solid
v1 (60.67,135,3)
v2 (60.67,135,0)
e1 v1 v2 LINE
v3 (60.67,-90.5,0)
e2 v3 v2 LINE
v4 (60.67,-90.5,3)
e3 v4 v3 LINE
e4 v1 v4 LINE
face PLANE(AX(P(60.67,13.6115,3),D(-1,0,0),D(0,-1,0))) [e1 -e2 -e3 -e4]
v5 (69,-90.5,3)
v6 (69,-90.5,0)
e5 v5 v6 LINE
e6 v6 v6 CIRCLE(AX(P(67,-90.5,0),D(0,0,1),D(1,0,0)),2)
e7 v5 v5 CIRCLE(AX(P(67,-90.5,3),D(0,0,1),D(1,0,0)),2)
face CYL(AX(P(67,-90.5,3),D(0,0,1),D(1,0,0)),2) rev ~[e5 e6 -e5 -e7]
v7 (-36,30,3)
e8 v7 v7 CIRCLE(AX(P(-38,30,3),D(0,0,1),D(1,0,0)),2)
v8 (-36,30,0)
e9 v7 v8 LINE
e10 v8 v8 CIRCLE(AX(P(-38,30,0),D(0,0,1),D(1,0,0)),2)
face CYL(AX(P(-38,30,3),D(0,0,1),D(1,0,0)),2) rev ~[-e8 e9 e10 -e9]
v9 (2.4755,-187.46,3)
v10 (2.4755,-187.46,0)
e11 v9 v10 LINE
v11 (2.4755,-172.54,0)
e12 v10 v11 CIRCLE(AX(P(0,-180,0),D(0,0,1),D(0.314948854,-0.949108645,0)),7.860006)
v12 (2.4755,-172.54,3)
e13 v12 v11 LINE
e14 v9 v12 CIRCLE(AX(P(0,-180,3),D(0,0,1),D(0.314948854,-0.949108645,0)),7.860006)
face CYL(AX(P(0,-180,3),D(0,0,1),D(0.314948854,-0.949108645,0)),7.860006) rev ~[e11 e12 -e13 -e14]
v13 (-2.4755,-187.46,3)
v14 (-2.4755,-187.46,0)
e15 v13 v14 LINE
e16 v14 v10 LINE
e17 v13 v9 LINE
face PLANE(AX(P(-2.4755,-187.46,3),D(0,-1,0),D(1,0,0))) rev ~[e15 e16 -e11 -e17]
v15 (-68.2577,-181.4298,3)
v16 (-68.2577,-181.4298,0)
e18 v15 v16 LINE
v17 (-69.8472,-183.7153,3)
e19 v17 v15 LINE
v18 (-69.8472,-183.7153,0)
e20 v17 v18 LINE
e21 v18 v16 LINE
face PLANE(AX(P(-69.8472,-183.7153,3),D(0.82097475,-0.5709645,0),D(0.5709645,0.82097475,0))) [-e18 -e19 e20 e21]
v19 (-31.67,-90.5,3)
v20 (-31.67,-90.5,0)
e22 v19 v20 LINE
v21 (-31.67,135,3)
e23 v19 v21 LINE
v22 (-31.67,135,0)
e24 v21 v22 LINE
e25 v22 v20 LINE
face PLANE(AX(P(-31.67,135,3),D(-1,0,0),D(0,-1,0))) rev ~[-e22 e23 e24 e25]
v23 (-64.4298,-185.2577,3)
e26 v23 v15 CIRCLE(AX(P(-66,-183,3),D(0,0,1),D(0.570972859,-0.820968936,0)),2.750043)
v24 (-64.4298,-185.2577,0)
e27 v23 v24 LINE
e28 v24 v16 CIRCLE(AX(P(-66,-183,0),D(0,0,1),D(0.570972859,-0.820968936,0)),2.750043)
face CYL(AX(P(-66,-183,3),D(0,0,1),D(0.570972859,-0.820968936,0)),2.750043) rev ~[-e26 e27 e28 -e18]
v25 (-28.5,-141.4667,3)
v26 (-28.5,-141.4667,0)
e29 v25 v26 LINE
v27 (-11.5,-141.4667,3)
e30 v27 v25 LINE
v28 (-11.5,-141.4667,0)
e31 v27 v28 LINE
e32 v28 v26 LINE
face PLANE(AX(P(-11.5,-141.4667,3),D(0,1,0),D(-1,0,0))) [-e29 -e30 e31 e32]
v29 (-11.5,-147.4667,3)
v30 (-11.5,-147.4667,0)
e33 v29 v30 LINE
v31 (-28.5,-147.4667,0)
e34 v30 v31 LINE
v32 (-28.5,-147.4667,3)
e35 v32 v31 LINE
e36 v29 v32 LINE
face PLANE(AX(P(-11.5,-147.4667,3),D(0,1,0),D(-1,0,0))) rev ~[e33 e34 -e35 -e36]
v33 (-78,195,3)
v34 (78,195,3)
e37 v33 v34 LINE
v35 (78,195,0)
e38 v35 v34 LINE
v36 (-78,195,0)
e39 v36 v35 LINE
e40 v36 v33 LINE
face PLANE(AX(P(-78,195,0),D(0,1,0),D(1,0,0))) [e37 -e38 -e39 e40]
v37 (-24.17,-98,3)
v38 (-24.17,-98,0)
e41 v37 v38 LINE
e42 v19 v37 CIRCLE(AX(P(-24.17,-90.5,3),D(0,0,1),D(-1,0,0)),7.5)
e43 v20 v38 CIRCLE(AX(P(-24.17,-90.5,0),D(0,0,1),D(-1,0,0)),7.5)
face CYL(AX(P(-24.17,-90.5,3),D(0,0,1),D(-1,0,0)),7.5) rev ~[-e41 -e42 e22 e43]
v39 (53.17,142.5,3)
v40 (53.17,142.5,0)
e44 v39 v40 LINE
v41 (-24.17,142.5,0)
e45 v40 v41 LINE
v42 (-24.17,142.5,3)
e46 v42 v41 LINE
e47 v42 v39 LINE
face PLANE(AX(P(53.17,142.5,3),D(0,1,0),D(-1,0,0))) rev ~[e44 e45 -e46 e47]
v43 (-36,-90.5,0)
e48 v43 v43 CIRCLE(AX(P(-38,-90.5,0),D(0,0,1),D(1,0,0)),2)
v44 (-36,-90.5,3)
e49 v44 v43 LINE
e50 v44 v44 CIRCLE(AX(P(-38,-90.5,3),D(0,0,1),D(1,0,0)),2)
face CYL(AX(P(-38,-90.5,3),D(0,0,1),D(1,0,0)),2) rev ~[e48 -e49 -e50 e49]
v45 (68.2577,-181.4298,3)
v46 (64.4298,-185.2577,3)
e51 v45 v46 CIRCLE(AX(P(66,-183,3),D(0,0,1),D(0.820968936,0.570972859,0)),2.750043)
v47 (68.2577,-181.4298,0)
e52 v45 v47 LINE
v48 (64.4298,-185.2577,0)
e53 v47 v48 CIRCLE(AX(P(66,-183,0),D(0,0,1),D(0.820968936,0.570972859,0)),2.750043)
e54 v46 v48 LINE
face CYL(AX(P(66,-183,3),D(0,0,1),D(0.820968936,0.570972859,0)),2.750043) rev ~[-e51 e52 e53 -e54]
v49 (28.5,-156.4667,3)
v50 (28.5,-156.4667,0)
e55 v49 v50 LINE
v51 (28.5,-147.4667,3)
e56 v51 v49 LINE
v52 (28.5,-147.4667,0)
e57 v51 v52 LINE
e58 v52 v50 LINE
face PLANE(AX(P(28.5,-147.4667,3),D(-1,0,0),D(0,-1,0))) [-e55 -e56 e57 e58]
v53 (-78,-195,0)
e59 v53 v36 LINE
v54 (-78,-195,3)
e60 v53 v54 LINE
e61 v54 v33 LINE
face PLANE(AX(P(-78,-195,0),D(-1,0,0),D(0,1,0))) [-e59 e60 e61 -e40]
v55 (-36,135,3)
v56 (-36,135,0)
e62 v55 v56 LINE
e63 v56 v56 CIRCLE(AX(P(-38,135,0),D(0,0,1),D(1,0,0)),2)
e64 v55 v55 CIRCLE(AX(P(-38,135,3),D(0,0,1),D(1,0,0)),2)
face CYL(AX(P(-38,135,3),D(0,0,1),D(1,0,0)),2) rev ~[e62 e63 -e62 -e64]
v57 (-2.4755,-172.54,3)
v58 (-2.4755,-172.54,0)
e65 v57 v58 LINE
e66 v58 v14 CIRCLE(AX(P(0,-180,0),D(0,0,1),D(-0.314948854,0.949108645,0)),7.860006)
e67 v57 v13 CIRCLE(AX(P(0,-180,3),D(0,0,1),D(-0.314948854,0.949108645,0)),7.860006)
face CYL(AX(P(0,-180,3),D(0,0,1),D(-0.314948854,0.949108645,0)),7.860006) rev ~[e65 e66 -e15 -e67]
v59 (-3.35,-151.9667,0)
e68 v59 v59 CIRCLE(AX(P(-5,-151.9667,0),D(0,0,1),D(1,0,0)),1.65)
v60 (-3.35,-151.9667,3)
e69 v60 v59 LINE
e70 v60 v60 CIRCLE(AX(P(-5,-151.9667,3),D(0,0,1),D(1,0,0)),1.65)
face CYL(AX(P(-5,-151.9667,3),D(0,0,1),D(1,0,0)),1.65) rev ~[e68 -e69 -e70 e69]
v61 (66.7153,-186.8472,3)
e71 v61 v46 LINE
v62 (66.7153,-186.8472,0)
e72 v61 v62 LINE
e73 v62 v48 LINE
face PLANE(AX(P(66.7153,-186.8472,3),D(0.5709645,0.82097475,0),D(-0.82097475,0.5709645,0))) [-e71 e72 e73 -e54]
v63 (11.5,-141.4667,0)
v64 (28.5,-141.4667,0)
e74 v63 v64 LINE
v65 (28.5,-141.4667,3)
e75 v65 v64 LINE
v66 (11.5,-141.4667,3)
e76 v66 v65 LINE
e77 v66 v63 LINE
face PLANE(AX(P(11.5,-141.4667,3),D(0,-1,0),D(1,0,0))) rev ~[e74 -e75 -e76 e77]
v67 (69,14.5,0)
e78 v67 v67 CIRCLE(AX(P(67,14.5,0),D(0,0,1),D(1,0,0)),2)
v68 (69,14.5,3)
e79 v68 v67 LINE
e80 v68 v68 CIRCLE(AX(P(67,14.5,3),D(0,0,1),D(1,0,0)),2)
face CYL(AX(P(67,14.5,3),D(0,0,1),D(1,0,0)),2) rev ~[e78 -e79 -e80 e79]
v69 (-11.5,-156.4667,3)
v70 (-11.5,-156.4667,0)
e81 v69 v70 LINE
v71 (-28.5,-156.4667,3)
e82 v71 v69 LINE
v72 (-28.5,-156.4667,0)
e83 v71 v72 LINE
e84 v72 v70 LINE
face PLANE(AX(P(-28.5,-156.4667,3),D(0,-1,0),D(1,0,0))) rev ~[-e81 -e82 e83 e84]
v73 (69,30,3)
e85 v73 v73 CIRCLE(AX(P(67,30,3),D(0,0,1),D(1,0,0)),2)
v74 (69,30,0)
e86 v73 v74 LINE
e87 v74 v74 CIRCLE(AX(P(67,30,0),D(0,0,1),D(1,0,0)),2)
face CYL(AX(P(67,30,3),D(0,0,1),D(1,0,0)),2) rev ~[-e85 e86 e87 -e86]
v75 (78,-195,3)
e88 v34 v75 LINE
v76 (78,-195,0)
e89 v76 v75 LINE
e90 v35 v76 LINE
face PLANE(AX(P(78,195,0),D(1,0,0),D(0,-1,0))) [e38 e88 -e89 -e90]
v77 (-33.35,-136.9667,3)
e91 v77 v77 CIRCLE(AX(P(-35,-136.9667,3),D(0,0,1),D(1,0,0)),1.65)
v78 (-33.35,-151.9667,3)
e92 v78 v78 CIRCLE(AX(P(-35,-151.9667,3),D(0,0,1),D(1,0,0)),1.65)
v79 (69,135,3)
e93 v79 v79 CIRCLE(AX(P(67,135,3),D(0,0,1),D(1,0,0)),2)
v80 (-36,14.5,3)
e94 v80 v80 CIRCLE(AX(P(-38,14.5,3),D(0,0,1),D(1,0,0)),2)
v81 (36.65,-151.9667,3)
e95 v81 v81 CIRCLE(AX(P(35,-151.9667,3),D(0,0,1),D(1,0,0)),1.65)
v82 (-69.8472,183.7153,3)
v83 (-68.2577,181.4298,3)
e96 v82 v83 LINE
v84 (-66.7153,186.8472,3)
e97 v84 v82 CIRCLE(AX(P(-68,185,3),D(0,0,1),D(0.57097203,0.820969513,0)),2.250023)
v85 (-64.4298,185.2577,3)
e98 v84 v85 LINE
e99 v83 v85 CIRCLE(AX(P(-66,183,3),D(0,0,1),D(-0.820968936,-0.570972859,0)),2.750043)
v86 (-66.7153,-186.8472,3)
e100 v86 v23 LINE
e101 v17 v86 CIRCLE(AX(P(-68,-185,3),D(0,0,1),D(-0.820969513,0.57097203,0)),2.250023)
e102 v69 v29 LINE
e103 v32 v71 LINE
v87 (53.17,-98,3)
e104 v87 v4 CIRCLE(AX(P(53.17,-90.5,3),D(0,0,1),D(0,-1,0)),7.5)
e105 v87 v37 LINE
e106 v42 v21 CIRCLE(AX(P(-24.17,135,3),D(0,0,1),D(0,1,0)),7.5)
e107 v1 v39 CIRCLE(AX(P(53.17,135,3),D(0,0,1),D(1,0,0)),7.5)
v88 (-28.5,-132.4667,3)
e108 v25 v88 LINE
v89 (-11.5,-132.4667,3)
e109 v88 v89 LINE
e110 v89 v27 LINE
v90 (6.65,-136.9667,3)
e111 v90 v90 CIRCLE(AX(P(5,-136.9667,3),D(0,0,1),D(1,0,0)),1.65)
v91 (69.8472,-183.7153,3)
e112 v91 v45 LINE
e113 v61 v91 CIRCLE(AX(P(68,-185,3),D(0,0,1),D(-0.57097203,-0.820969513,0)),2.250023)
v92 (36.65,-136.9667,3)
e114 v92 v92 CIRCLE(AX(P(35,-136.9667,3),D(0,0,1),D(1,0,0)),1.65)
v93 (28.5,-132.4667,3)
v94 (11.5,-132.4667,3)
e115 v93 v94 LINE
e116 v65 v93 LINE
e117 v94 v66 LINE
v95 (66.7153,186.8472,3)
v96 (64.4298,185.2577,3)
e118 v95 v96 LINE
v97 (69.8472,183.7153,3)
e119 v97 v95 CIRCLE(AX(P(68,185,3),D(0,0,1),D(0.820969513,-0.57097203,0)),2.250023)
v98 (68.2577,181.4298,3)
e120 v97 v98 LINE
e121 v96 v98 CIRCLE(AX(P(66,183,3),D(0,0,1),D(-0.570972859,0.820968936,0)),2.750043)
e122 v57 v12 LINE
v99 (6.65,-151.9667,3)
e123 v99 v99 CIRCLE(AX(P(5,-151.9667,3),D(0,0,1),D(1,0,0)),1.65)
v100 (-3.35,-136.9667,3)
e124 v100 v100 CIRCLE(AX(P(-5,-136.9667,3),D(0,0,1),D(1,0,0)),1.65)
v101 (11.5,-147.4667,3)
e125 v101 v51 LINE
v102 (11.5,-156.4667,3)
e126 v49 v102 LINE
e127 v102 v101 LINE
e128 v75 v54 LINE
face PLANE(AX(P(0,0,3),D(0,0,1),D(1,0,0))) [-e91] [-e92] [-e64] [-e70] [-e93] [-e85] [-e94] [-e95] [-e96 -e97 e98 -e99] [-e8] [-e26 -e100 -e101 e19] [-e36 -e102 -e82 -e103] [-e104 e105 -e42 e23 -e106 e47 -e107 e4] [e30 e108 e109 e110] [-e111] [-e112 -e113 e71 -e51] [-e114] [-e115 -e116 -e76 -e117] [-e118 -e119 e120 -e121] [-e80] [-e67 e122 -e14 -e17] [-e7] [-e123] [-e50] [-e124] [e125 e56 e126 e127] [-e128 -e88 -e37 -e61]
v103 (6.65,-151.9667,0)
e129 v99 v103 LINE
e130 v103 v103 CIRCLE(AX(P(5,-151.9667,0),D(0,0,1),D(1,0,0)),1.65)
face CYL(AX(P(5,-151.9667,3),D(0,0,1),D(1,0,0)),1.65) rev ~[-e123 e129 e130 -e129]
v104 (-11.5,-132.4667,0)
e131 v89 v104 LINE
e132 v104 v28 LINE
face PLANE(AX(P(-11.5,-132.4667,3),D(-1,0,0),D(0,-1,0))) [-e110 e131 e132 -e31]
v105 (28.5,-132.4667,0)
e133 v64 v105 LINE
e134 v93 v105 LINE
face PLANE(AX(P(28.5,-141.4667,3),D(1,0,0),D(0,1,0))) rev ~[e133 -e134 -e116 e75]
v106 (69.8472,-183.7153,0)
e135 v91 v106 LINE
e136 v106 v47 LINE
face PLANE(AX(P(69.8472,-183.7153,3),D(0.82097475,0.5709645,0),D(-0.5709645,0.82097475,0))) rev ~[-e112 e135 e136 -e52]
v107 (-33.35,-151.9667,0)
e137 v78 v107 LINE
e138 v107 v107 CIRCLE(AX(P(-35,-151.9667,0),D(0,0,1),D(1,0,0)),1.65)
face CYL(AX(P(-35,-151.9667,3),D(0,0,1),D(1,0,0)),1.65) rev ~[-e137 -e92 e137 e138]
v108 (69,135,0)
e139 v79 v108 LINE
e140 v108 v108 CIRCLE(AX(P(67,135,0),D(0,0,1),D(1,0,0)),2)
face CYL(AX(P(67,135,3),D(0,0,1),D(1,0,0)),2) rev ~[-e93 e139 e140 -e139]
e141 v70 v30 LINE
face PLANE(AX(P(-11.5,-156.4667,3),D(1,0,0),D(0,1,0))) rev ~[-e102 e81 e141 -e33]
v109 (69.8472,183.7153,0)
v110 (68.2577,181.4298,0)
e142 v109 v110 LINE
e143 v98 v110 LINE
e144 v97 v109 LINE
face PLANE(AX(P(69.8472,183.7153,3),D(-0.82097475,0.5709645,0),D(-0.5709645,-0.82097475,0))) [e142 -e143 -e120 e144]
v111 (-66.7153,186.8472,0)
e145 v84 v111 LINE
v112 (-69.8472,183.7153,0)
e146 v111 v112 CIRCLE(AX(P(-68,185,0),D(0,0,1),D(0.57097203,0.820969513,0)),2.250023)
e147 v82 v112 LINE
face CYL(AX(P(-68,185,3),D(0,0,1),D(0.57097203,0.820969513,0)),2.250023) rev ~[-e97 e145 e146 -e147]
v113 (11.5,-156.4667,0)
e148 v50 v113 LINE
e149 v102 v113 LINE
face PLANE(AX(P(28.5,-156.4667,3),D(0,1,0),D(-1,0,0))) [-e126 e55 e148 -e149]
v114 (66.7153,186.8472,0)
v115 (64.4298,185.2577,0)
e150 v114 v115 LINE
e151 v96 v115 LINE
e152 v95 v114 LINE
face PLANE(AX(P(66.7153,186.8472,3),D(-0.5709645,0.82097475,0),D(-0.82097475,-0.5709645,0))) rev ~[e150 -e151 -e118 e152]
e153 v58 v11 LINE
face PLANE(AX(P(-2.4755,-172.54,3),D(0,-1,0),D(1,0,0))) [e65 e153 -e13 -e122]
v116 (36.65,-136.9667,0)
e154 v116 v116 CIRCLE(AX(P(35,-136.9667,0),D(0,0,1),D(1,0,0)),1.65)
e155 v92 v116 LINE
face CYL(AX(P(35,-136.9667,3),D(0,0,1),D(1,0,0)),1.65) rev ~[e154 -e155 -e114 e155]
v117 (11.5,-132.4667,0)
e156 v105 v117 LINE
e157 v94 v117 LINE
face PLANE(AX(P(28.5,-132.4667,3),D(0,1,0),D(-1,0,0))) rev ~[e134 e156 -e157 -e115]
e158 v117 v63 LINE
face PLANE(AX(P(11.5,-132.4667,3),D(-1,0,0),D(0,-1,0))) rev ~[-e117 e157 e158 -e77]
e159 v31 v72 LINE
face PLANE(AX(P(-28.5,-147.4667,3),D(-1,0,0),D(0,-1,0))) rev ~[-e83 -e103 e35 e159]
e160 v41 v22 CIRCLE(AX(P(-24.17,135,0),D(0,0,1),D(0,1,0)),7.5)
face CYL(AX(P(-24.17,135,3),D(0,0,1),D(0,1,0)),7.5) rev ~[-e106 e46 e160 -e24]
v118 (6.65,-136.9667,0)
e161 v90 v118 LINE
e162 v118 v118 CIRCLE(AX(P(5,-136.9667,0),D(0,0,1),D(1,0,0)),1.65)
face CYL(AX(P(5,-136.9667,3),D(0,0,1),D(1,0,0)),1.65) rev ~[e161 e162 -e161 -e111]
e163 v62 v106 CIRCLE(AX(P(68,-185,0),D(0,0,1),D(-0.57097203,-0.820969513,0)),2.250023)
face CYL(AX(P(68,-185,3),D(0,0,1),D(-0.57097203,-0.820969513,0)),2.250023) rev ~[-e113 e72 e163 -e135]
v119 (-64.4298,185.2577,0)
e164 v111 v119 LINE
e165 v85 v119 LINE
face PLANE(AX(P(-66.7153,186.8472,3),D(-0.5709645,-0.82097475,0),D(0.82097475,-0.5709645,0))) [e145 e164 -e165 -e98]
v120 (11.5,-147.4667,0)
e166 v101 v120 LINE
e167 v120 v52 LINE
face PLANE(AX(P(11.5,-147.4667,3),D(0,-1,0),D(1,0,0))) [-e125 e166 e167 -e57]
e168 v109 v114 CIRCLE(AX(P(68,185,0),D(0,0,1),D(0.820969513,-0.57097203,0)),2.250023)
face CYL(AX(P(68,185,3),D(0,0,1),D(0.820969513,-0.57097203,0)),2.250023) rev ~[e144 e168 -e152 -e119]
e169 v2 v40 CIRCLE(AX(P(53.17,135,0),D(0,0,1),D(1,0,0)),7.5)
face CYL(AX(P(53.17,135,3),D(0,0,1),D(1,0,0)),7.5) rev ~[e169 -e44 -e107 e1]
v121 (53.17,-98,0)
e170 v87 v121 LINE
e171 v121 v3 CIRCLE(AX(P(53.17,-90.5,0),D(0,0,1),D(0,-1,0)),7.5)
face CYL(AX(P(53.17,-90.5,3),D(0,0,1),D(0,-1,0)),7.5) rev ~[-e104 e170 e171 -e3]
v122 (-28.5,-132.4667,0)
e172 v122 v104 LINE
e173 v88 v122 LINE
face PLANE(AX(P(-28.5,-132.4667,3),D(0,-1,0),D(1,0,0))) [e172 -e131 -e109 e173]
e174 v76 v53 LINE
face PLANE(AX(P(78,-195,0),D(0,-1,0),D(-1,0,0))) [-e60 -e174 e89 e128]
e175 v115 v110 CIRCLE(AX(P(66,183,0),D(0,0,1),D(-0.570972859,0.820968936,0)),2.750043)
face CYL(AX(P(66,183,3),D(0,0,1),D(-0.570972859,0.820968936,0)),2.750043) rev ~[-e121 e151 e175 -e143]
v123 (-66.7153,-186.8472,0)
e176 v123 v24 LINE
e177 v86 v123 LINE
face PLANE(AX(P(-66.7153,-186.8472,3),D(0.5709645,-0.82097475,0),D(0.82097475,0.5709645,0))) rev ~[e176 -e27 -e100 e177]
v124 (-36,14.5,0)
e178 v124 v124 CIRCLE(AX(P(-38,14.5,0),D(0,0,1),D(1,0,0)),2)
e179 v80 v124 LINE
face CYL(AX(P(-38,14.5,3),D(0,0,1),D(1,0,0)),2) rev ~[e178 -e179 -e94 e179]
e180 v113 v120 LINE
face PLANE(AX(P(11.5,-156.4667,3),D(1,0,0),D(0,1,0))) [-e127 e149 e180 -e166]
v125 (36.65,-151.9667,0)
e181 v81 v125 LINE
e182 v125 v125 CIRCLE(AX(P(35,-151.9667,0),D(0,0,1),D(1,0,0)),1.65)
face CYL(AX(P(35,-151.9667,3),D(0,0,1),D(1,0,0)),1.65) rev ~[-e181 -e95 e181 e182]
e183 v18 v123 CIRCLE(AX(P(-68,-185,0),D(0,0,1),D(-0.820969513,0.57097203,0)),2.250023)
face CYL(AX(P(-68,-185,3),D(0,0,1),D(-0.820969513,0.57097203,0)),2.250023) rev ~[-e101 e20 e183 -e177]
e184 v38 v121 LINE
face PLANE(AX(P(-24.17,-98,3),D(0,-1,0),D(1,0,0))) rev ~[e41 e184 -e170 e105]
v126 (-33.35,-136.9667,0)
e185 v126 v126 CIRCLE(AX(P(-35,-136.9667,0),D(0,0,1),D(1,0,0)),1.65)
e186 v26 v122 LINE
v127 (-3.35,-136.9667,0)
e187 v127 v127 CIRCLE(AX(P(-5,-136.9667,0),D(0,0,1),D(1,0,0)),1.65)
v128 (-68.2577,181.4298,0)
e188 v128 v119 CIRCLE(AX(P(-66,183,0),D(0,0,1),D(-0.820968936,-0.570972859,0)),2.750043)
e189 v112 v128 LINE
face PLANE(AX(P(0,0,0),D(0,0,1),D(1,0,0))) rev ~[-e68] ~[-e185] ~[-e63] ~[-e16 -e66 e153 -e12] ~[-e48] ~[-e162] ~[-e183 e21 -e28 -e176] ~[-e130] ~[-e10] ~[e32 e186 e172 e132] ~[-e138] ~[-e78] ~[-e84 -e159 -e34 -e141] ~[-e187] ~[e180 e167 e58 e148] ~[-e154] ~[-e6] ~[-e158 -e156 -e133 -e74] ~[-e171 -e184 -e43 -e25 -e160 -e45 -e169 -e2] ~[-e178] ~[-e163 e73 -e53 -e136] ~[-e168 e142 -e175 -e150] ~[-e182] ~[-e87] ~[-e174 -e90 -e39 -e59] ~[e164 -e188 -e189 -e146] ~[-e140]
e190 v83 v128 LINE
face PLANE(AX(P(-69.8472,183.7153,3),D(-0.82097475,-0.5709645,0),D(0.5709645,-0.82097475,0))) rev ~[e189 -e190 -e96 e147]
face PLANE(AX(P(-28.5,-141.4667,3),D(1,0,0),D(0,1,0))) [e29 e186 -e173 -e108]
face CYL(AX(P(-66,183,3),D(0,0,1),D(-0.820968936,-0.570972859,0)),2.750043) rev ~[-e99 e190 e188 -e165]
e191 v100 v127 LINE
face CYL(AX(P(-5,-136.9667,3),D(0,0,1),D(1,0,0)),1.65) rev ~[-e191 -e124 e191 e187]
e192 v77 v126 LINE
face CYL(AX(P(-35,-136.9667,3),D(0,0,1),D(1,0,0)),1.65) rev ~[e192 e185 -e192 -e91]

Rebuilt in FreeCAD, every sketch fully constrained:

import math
import FreeCAD as App
import Part
import Sketcher
from FreeCAD import Vector
Q = App.Units.Quantity

doc = App.newDocument("Part")
body = doc.addObject("PartDesign::Body", "Body")

sketch1 = body.newObject("Sketcher::SketchObject", "Sketch")
sketch1.AttachmentSupport = (doc.getObject("XY_Plane"), [""])
sketch1.MapMode = "FlatFace"
sketch1.addGeometry(Part.LineSegment(Vector(78, 195, 0), Vector(-78, 195, 0)), False)
sketch1.addGeometry(Part.LineSegment(Vector(-78, 195, 0), Vector(-78, -195, 0)), False)
sketch1.addGeometry(Part.LineSegment(Vector(-78, -195, 0), Vector(78, -195, 0)), False)
sketch1.addGeometry(Part.LineSegment(Vector(78, -195, 0), Vector(78, 195, 0)), False)
sketch1.addConstraint(Sketcher.Constraint("Coincident", 0, 2, 1, 1))
sketch1.addConstraint(Sketcher.Constraint("Coincident", 1, 2, 2, 1))
sketch1.addConstraint(Sketcher.Constraint("Coincident", 2, 2, 3, 1))
sketch1.addConstraint(Sketcher.Constraint("Coincident", 3, 2, 0, 1))
sketch1.addConstraint(Sketcher.Constraint("Horizontal", 0))
sketch1.addConstraint(Sketcher.Constraint("Vertical", 1))
sketch1.addConstraint(Sketcher.Constraint("Horizontal", 2))
sketch1.addConstraint(Sketcher.Constraint("Vertical", 3))
sketch1.addConstraint(Sketcher.Constraint("Symmetric", 0, 2, 2, 2, -1, 1))
sketch1.addConstraint(Sketcher.Constraint("DistanceX", 0, 2, 0, 1, Q("156 mm")))
sketch1.addConstraint(Sketcher.Constraint("DistanceY", 1, 2, 1, 1, Q("390 mm")))
pad1 = body.newObject("PartDesign::Pad", "Pad")
pad1.Profile = sketch1
pad1.Length = 3

sketch2 = body.newObject("Sketcher::SketchObject", "Sketch001")
sketch2.AttachmentSupport = (doc.getObject("XY_Plane"), [""])
sketch2.MapMode = "FlatFace"
sketch2.AttachmentOffset = App.Placement(Vector(0, 0, 3), App.Rotation())
sketch2.addGeometry(Part.LineSegment(Vector(-66.7, -186.8, 0), Vector(-64.4, -185.3, 0)), False)
sketch2.addGeometry(Part.ArcOfCircle(Part.Circle(Vector(-66, -183, 0), Vector(0, 0, 1), 2.8), math.radians(-55), math.radians(145)), False)
sketch2.addGeometry(Part.LineSegment(Vector(-68.3, -181.4, 0), Vector(-69.8, -183.7, 0)), False)
sketch2.addGeometry(Part.ArcOfCircle(Part.Circle(Vector(-68, -185, 0), Vector(0, 0, 1), 2.3), math.radians(145), math.radians(305)), False)
sketch2.addGeometry(Part.LineSegment(Vector(69.8, -183.7, 0), Vector(68.3, -181.4, 0)), False)
sketch2.addGeometry(Part.ArcOfCircle(Part.Circle(Vector(66, -183, 0), Vector(0, 0, 1), 2.8), math.radians(35), math.radians(235)), False)
sketch2.addGeometry(Part.LineSegment(Vector(64.4, -185.3, 0), Vector(66.7, -186.8, 0)), False)
sketch2.addGeometry(Part.ArcOfCircle(Part.Circle(Vector(68, -185, 0), Vector(0, 0, 1), 2.3), math.radians(-125), math.radians(35)), False)
sketch2.addGeometry(Part.LineSegment(Vector(-69.8, 183.7, 0), Vector(-68.3, 181.4, 0)), False)
sketch2.addGeometry(Part.ArcOfCircle(Part.Circle(Vector(-66, 183, 0), Vector(0, 0, 1), 2.8), math.radians(-145), math.radians(55)), False)
sketch2.addGeometry(Part.LineSegment(Vector(-64.4, 185.3, 0), Vector(-66.7, 186.8, 0)), False)
sketch2.addGeometry(Part.ArcOfCircle(Part.Circle(Vector(-68, 185, 0), Vector(0, 0, 1), 2.3), math.radians(55), math.radians(215)), False)
sketch2.addGeometry(Part.LineSegment(Vector(66.7, 186.8, 0), Vector(64.4, 185.3, 0)), False)
sketch2.addGeometry(Part.ArcOfCircle(Part.Circle(Vector(66, 183, 0), Vector(0, 0, 1), 2.8), math.radians(125), math.radians(325)), False)
sketch2.addGeometry(Part.LineSegment(Vector(68.3, 181.4, 0), Vector(69.8, 183.7, 0)), False)
sketch2.addGeometry(Part.ArcOfCircle(Part.Circle(Vector(68, 185, 0), Vector(0, 0, 1), 2.3), math.radians(-35), math.radians(125)), False)
sketch2.addConstraint(Sketcher.Constraint("Tangent", 0, 2, 1, 1))
sketch2.addConstraint(Sketcher.Constraint("Tangent", 1, 2, 2, 1))
sketch2.addConstraint(Sketcher.Constraint("Tangent", 2, 2, 3, 1))
sketch2.addConstraint(Sketcher.Constraint("Tangent", 3, 2, 0, 1))
sketch2.addConstraint(Sketcher.Constraint("Tangent", 4, 2, 5, 1))
sketch2.addConstraint(Sketcher.Constraint("Tangent", 5, 2, 6, 1))
sketch2.addConstraint(Sketcher.Constraint("Tangent", 6, 2, 7, 1))
sketch2.addConstraint(Sketcher.Constraint("Tangent", 7, 2, 4, 1))
sketch2.addConstraint(Sketcher.Constraint("Tangent", 8, 2, 9, 1))
sketch2.addConstraint(Sketcher.Constraint("Tangent", 9, 2, 10, 1))
sketch2.addConstraint(Sketcher.Constraint("Tangent", 10, 2, 11, 1))
sketch2.addConstraint(Sketcher.Constraint("Tangent", 11, 2, 8, 1))
sketch2.addConstraint(Sketcher.Constraint("Tangent", 12, 2, 13, 1))
sketch2.addConstraint(Sketcher.Constraint("Tangent", 13, 2, 14, 1))
sketch2.addConstraint(Sketcher.Constraint("Tangent", 14, 2, 15, 1))
sketch2.addConstraint(Sketcher.Constraint("Tangent", 15, 2, 12, 1))
sketch2.addConstraint(Sketcher.Constraint("Equal", 1, 5))
sketch2.addConstraint(Sketcher.Constraint("Equal", 3, 7))
sketch2.addConstraint(Sketcher.Constraint("Equal", 5, 9))
sketch2.addConstraint(Sketcher.Constraint("Equal", 7, 11))
sketch2.addConstraint(Sketcher.Constraint("Equal", 9, 13))
sketch2.addConstraint(Sketcher.Constraint("Equal", 11, 15))
sketch2.addConstraint(Sketcher.Constraint("Symmetric", 5, 3, 9, 3, -1, 1))
sketch2.addConstraint(Sketcher.Constraint("Symmetric", 7, 3, 11, 3, -1, 1))
sketch2.addConstraint(Sketcher.Constraint("Symmetric", 1, 3, 13, 3, -1, 1))
sketch2.addConstraint(Sketcher.Constraint("Symmetric", 3, 3, 15, 3, -1, 1))
sketch2.addConstraint(Sketcher.Constraint("Symmetric", 1, 3, 5, 3, -2))
sketch2.addConstraint(Sketcher.Constraint("Symmetric", 3, 3, 7, 3, -2))
sketch2.addConstraint(Sketcher.Constraint("Perpendicular", 0, 4))
sketch2.addConstraint(Sketcher.Constraint("Radius", 1, Q("2.75 mm")))
sketch2.addConstraint(Sketcher.Constraint("Radius", 3, Q("2.25 mm")))
sketch2.addConstraint(Sketcher.Constraint("DistanceX", 1, 3, -1, 1, Q("66 mm")))
sketch2.addConstraint(Sketcher.Constraint("DistanceY", 1, 3, -1, 1, Q("183 mm")))
sketch2.addConstraint(Sketcher.Constraint("DistanceX", 3, 3, -1, 1, Q("68 mm")))
pocket1 = body.newObject("PartDesign::Pocket", "Pocket")
pocket1.Profile = sketch2
pocket1.Length = 3

sketch3 = body.newObject("Sketcher::SketchObject", "Sketch002")
sketch3.AttachmentSupport = (doc.getObject("XY_Plane"), [""])
sketch3.MapMode = "FlatFace"
sketch3.AttachmentOffset = App.Placement(Vector(0, 0, 3), App.Rotation())
sketch3.addGeometry(Part.LineSegment(Vector(-11.5, -132.5, 0), Vector(-28.5, -132.5, 0)), False)
sketch3.addGeometry(Part.LineSegment(Vector(-28.5, -132.5, 0), Vector(-28.5, -141.5, 0)), False)
sketch3.addGeometry(Part.LineSegment(Vector(-28.5, -141.5, 0), Vector(-11.5, -141.5, 0)), False)
sketch3.addGeometry(Part.LineSegment(Vector(-11.5, -141.5, 0), Vector(-11.5, -132.5, 0)), False)
sketch3.addGeometry(Part.Circle(Vector(-35, -137, 0), Vector(0, 0, 1), 1.6), False)
sketch3.addGeometry(Part.Circle(Vector(-5, -137, 0), Vector(0, 0, 1), 1.6), False)
sketch3.addGeometry(Part.LineSegment(Vector(28.5, -141.5, 0), Vector(28.5, -132.5, 0)), False)
sketch3.addGeometry(Part.LineSegment(Vector(28.5, -132.5, 0), Vector(11.5, -132.5, 0)), False)
sketch3.addGeometry(Part.LineSegment(Vector(11.5, -132.5, 0), Vector(11.5, -141.5, 0)), False)
sketch3.addGeometry(Part.LineSegment(Vector(11.5, -141.5, 0), Vector(28.5, -141.5, 0)), False)
sketch3.addGeometry(Part.Circle(Vector(35, -137, 0), Vector(0, 0, 1), 1.6), False)
sketch3.addGeometry(Part.Circle(Vector(5, -137, 0), Vector(0, 0, 1), 1.6), False)
sketch3.addGeometry(Part.LineSegment(Vector(-28.5, -147.5, 0), Vector(-28.5, -156.5, 0)), False)
sketch3.addGeometry(Part.LineSegment(Vector(-28.5, -156.5, 0), Vector(-11.5, -156.5, 0)), False)
sketch3.addGeometry(Part.LineSegment(Vector(-11.5, -156.5, 0), Vector(-11.5, -147.5, 0)), False)
sketch3.addGeometry(Part.LineSegment(Vector(-11.5, -147.5, 0), Vector(-28.5, -147.5, 0)), False)
sketch3.addGeometry(Part.Circle(Vector(-35, -152, 0), Vector(0, 0, 1), 1.6), False)
sketch3.addGeometry(Part.Circle(Vector(-5, -152, 0), Vector(0, 0, 1), 1.6), False)
sketch3.addGeometry(Part.LineSegment(Vector(11.5, -156.5, 0), Vector(28.5, -156.5, 0)), False)
sketch3.addGeometry(Part.LineSegment(Vector(28.5, -156.5, 0), Vector(28.5, -147.5, 0)), False)
sketch3.addGeometry(Part.LineSegment(Vector(28.5, -147.5, 0), Vector(11.5, -147.5, 0)), False)
sketch3.addGeometry(Part.LineSegment(Vector(11.5, -147.5, 0), Vector(11.5, -156.5, 0)), False)
sketch3.addGeometry(Part.Circle(Vector(35, -152, 0), Vector(0, 0, 1), 1.6), False)
sketch3.addGeometry(Part.Circle(Vector(5, -152, 0), Vector(0, 0, 1), 1.6), False)
sketch3.addConstraint(Sketcher.Constraint("Coincident", 0, 2, 1, 1))
sketch3.addConstraint(Sketcher.Constraint("Coincident", 1, 2, 2, 1))
sketch3.addConstraint(Sketcher.Constraint("Coincident", 2, 2, 3, 1))
sketch3.addConstraint(Sketcher.Constraint("Coincident", 3, 2, 0, 1))
sketch3.addConstraint(Sketcher.Constraint("Coincident", 6, 2, 7, 1))
sketch3.addConstraint(Sketcher.Constraint("Coincident", 7, 2, 8, 1))
sketch3.addConstraint(Sketcher.Constraint("Coincident", 8, 2, 9, 1))
sketch3.addConstraint(Sketcher.Constraint("Coincident", 9, 2, 6, 1))
sketch3.addConstraint(Sketcher.Constraint("Coincident", 12, 2, 13, 1))
sketch3.addConstraint(Sketcher.Constraint("Coincident", 13, 2, 14, 1))
sketch3.addConstraint(Sketcher.Constraint("Coincident", 14, 2, 15, 1))
sketch3.addConstraint(Sketcher.Constraint("Coincident", 15, 2, 12, 1))
sketch3.addConstraint(Sketcher.Constraint("Coincident", 18, 2, 19, 1))
sketch3.addConstraint(Sketcher.Constraint("Coincident", 19, 2, 20, 1))
sketch3.addConstraint(Sketcher.Constraint("Coincident", 20, 2, 21, 1))
sketch3.addConstraint(Sketcher.Constraint("Coincident", 21, 2, 18, 1))
sketch3.addConstraint(Sketcher.Constraint("Horizontal", 0))
sketch3.addConstraint(Sketcher.Constraint("Vertical", 1))
sketch3.addConstraint(Sketcher.Constraint("Horizontal", 2))
sketch3.addConstraint(Sketcher.Constraint("Vertical", 3))
sketch3.addConstraint(Sketcher.Constraint("Vertical", 6))
sketch3.addConstraint(Sketcher.Constraint("Horizontal", 7))
sketch3.addConstraint(Sketcher.Constraint("Vertical", 8))
sketch3.addConstraint(Sketcher.Constraint("Horizontal", 9))
sketch3.addConstraint(Sketcher.Constraint("Vertical", 12))
sketch3.addConstraint(Sketcher.Constraint("Horizontal", 13))
sketch3.addConstraint(Sketcher.Constraint("Vertical", 14))
sketch3.addConstraint(Sketcher.Constraint("Horizontal", 15))
sketch3.addConstraint(Sketcher.Constraint("Horizontal", 18))
sketch3.addConstraint(Sketcher.Constraint("Vertical", 19))
sketch3.addConstraint(Sketcher.Constraint("Horizontal", 20))
sketch3.addConstraint(Sketcher.Constraint("Vertical", 21))
sketch3.addConstraint(Sketcher.Constraint("Equal", 4, 5))
sketch3.addConstraint(Sketcher.Constraint("Equal", 5, 10))
sketch3.addConstraint(Sketcher.Constraint("Equal", 10, 11))
sketch3.addConstraint(Sketcher.Constraint("Equal", 11, 16))
sketch3.addConstraint(Sketcher.Constraint("Equal", 16, 17))
sketch3.addConstraint(Sketcher.Constraint("Equal", 17, 22))
sketch3.addConstraint(Sketcher.Constraint("Equal", 22, 23))
sketch3.addConstraint(Sketcher.Constraint("Symmetric", 4, 3, 10, 3, -2))
sketch3.addConstraint(Sketcher.Constraint("Symmetric", 5, 3, 11, 3, -2))
sketch3.addConstraint(Sketcher.Constraint("Symmetric", 16, 3, 22, 3, -2))
sketch3.addConstraint(Sketcher.Constraint("Symmetric", 17, 3, 23, 3, -2))
sketch3.addConstraint(Sketcher.Constraint("Symmetric", 0, 2, 6, 2, -2))
sketch3.addConstraint(Sketcher.Constraint("Symmetric", 2, 2, 8, 2, -2))
sketch3.addConstraint(Sketcher.Constraint("Symmetric", 12, 2, 18, 2, -2))
sketch3.addConstraint(Sketcher.Constraint("Symmetric", 14, 2, 20, 2, -2))
sketch3.addConstraint(Sketcher.Constraint("Horizontal", 4, 3, 5, 3))
sketch3.addConstraint(Sketcher.Constraint("Horizontal", 16, 3, 17, 3))
sketch3.addConstraint(Sketcher.Constraint("Vertical", 4, 3, 16, 3))
sketch3.addConstraint(Sketcher.Constraint("Vertical", 5, 3, 17, 3))
sketch3.addConstraint(Sketcher.Constraint("Vertical", 1, 2, 12, 2))
sketch3.addConstraint(Sketcher.Constraint("Vertical", 3, 2, 13, 2))
sketch3.addConstraint(Sketcher.Constraint("Equal", 8, 12))
sketch3.addConstraint(Sketcher.Constraint("Diameter", 4, Q("3.3 mm")))
sketch3.addConstraint(Sketcher.Constraint("DistanceX", 0, 2, 0, 1, Q("17 mm")))
sketch3.addConstraint(Sketcher.Constraint("DistanceY", 1, 2, 1, 1, Q("9 mm")))
sketch3.addConstraint(Sketcher.Constraint("DistanceX", 5, 3, -1, 1, Q("5 mm")))
sketch3.addConstraint(Sketcher.Constraint("DistanceX", 4, 3, 0, 2, Q("6.5 mm")))
sketch3.addConstraint(Sketcher.Constraint("DistanceY", 4, 3, 0, 2, Q("4.5 mm")))
sketch3.addConstraint(Sketcher.Constraint("DistanceX", 2, 2, 5, 3, Q("6.5 mm")))
sketch3.addConstraint(Sketcher.Constraint("DistanceY", 12, 2, 16, 3, Q("4.5 mm")))
sketch3.addConstraint(Sketcher.Constraint("DistanceY", 16, 3, 4, 3, Q("15 mm")))
sketch3.addConstraint(Sketcher.Constraint("DistanceY", 4, 3, -1, 1, Q("136.9667 mm")))
pocket2 = body.newObject("PartDesign::Pocket", "Pocket001")
pocket2.Profile = sketch3
pocket2.Length = 3

sketch4 = body.newObject("Sketcher::SketchObject", "Sketch003")
sketch4.AttachmentSupport = (doc.getObject("XY_Plane"), [""])
sketch4.MapMode = "FlatFace"
sketch4.AttachmentOffset = App.Placement(Vector(0, 0, 3), App.Rotation())
sketch4.addGeometry(Part.LineSegment(Vector(2.5, -172.5, 0), Vector(-2.5, -172.5, 0)), False)
sketch4.addGeometry(Part.ArcOfCircle(Part.Circle(Vector(0, -180, 0), Vector(0, 0, 1), 7.9), math.radians(108), math.radians(252)), False)
sketch4.addGeometry(Part.LineSegment(Vector(-2.5, -187.5, 0), Vector(2.5, -187.5, 0)), False)
sketch4.addGeometry(Part.ArcOfCircle(Part.Circle(Vector(0, -180, 0), Vector(0, 0, 1), 7.9), math.radians(-72), math.radians(72)), False)
sketch4.addConstraint(Sketcher.Constraint("Coincident", 0, 2, 1, 1))
sketch4.addConstraint(Sketcher.Constraint("Coincident", 1, 2, 2, 1))
sketch4.addConstraint(Sketcher.Constraint("Coincident", 2, 2, 3, 1))
sketch4.addConstraint(Sketcher.Constraint("Coincident", 3, 2, 0, 1))
sketch4.addConstraint(Sketcher.Constraint("Horizontal", 0))
sketch4.addConstraint(Sketcher.Constraint("Horizontal", 2))
sketch4.addConstraint(Sketcher.Constraint("Coincident", 3, 3, 1, 3))
sketch4.addConstraint(Sketcher.Constraint("Equal", 1, 3))
sketch4.addConstraint(Sketcher.Constraint("PointOnObject", 1, 3, -2))
sketch4.addConstraint(Sketcher.Constraint("Vertical", 0, 2, 1, 2))
sketch4.addConstraint(Sketcher.Constraint("Radius", 1, Q("7.86 mm")))
sketch4.addConstraint(Sketcher.Constraint("DistanceY", 1, 3, 0, 2, Q("7.46 mm")))
sketch4.addConstraint(Sketcher.Constraint("DistanceY", 1, 3, -1, 1, Q("180 mm")))
pocket3 = body.newObject("PartDesign::Pocket", "Pocket002")
pocket3.Profile = sketch4
pocket3.Length = 3

sketch5 = body.newObject("Sketcher::SketchObject", "Sketch004")
sketch5.AttachmentSupport = (doc.getObject("XY_Plane"), [""])
sketch5.MapMode = "FlatFace"
sketch5.AttachmentOffset = App.Placement(Vector(0, 0, 3), App.Rotation())
sketch5.addGeometry(Part.Circle(Vector(-38, -90.5, 0), Vector(0, 0, 1), 2), False)
sketch5.addGeometry(Part.Circle(Vector(-38, 14.5, 0), Vector(0, 0, 1), 2), False)
sketch5.addGeometry(Part.Circle(Vector(-38, 30, 0), Vector(0, 0, 1), 2), False)
sketch5.addGeometry(Part.Circle(Vector(-38, 135, 0), Vector(0, 0, 1), 2), False)
sketch5.addGeometry(Part.Circle(Vector(67, -90.5, 0), Vector(0, 0, 1), 2), False)
sketch5.addGeometry(Part.Circle(Vector(67, 14.5, 0), Vector(0, 0, 1), 2), False)
sketch5.addGeometry(Part.Circle(Vector(67, 30, 0), Vector(0, 0, 1), 2), False)
sketch5.addGeometry(Part.Circle(Vector(67, 135, 0), Vector(0, 0, 1), 2), False)
sketch5.addConstraint(Sketcher.Constraint("Equal", 0, 1))
sketch5.addConstraint(Sketcher.Constraint("Equal", 1, 2))
sketch5.addConstraint(Sketcher.Constraint("Equal", 2, 3))
sketch5.addConstraint(Sketcher.Constraint("Equal", 3, 4))
sketch5.addConstraint(Sketcher.Constraint("Equal", 4, 5))
sketch5.addConstraint(Sketcher.Constraint("Equal", 5, 6))
sketch5.addConstraint(Sketcher.Constraint("Equal", 6, 7))
sketch5.addConstraint(Sketcher.Constraint("Horizontal", 0, 3, 4, 3))
sketch5.addConstraint(Sketcher.Constraint("Horizontal", 1, 3, 5, 3))
sketch5.addConstraint(Sketcher.Constraint("Horizontal", 2, 3, 6, 3))
sketch5.addConstraint(Sketcher.Constraint("Horizontal", 3, 3, 7, 3))
sketch5.addConstraint(Sketcher.Constraint("Vertical", 0, 3, 1, 3))
sketch5.addConstraint(Sketcher.Constraint("Vertical", 1, 3, 2, 3))
sketch5.addConstraint(Sketcher.Constraint("Vertical", 2, 3, 3, 3))
sketch5.addConstraint(Sketcher.Constraint("Vertical", 4, 3, 5, 3))
sketch5.addConstraint(Sketcher.Constraint("Vertical", 5, 3, 6, 3))
sketch5.addConstraint(Sketcher.Constraint("Vertical", 6, 3, 7, 3))
sketch5.addConstraint(Sketcher.Constraint("Diameter", 0, Q("4 mm")))
sketch5.addConstraint(Sketcher.Constraint("DistanceY", 0, 3, 1, 3, Q("105 mm")))
sketch5.addConstraint(Sketcher.Constraint("DistanceY", 2, 3, 3, 3, Q("105 mm")))
sketch5.addConstraint(Sketcher.Constraint("DistanceX", 0, 3, 4, 3, Q("105 mm")))
sketch5.addConstraint(Sketcher.Constraint("DistanceY", 1, 3, 2, 3, Q("15.5 mm")))
sketch5.addConstraint(Sketcher.Constraint("DistanceX", 0, 3, -1, 1, Q("38 mm")))
sketch5.addConstraint(Sketcher.Constraint("DistanceY", -1, 1, 2, 3, Q("30 mm")))
pocket4 = body.newObject("PartDesign::Pocket", "Pocket003")
pocket4.Profile = sketch5
pocket4.Length = 3

sketch6 = body.newObject("Sketcher::SketchObject", "Sketch005")
sketch6.AttachmentSupport = (doc.getObject("XY_Plane"), [""])
sketch6.MapMode = "FlatFace"
sketch6.AttachmentOffset = App.Placement(Vector(0, 0, 3), App.Rotation())
sketch6.addGeometry(Part.ArcOfCircle(Part.Circle(Vector(-24, 135, 0), Vector(0, 0, 1), 8), math.radians(90), math.radians(180)), False)
sketch6.addGeometry(Part.LineSegment(Vector(-32, 135, 0), Vector(-32, -90, 0)), False)
sketch6.addGeometry(Part.ArcOfCircle(Part.Circle(Vector(-24, -90, 0), Vector(0, 0, 1), 8), math.radians(180), math.radians(270)), False)
sketch6.addGeometry(Part.LineSegment(Vector(-24, -98, 0), Vector(53, -98, 0)), False)
sketch6.addGeometry(Part.ArcOfCircle(Part.Circle(Vector(53, -90, 0), Vector(0, 0, 1), 8), math.radians(-90), math.radians(0)), False)
sketch6.addGeometry(Part.LineSegment(Vector(61, -90, 0), Vector(61, 135, 0)), False)
sketch6.addGeometry(Part.ArcOfCircle(Part.Circle(Vector(53, 135, 0), Vector(0, 0, 1), 8), math.radians(0), math.radians(90)), False)
sketch6.addGeometry(Part.LineSegment(Vector(53, 142, 0), Vector(-24, 142, 0)), False)
sketch6.addConstraint(Sketcher.Constraint("Tangent", 0, 2, 1, 1))
sketch6.addConstraint(Sketcher.Constraint("Tangent", 1, 2, 2, 1))
sketch6.addConstraint(Sketcher.Constraint("Tangent", 2, 2, 3, 1))
sketch6.addConstraint(Sketcher.Constraint("Tangent", 3, 2, 4, 1))
sketch6.addConstraint(Sketcher.Constraint("Tangent", 4, 2, 5, 1))
sketch6.addConstraint(Sketcher.Constraint("Tangent", 5, 2, 6, 1))
sketch6.addConstraint(Sketcher.Constraint("Tangent", 6, 2, 7, 1))
sketch6.addConstraint(Sketcher.Constraint("Tangent", 7, 2, 0, 1))
sketch6.addConstraint(Sketcher.Constraint("Vertical", 1))
sketch6.addConstraint(Sketcher.Constraint("Horizontal", 3))
sketch6.addConstraint(Sketcher.Constraint("Vertical", 5))
sketch6.addConstraint(Sketcher.Constraint("Horizontal", 7))
sketch6.addConstraint(Sketcher.Constraint("Equal", 0, 2))
sketch6.addConstraint(Sketcher.Constraint("Equal", 2, 4))
sketch6.addConstraint(Sketcher.Constraint("Equal", 4, 6))
sketch6.addConstraint(Sketcher.Constraint("Radius", 0, Q("7.5 mm")))
sketch6.addConstraint(Sketcher.Constraint("DistanceY", 1, 2, 1, 1, Q("225.5 mm")))
sketch6.addConstraint(Sketcher.Constraint("DistanceY", -1, 1, 0, 3, Q("135 mm")))
sketch6.addConstraint(Sketcher.Constraint("DistanceX", 3, 1, 3, 2, Q("77.34 mm")))
sketch6.addConstraint(Sketcher.Constraint("DistanceX", 0, 3, -1, 1, Q("24.17 mm")))
pocket5 = body.newObject("PartDesign::Pocket", "Pocket004")
pocket5.Profile = sketch6
pocket5.Length = 3

doc.recompute()
